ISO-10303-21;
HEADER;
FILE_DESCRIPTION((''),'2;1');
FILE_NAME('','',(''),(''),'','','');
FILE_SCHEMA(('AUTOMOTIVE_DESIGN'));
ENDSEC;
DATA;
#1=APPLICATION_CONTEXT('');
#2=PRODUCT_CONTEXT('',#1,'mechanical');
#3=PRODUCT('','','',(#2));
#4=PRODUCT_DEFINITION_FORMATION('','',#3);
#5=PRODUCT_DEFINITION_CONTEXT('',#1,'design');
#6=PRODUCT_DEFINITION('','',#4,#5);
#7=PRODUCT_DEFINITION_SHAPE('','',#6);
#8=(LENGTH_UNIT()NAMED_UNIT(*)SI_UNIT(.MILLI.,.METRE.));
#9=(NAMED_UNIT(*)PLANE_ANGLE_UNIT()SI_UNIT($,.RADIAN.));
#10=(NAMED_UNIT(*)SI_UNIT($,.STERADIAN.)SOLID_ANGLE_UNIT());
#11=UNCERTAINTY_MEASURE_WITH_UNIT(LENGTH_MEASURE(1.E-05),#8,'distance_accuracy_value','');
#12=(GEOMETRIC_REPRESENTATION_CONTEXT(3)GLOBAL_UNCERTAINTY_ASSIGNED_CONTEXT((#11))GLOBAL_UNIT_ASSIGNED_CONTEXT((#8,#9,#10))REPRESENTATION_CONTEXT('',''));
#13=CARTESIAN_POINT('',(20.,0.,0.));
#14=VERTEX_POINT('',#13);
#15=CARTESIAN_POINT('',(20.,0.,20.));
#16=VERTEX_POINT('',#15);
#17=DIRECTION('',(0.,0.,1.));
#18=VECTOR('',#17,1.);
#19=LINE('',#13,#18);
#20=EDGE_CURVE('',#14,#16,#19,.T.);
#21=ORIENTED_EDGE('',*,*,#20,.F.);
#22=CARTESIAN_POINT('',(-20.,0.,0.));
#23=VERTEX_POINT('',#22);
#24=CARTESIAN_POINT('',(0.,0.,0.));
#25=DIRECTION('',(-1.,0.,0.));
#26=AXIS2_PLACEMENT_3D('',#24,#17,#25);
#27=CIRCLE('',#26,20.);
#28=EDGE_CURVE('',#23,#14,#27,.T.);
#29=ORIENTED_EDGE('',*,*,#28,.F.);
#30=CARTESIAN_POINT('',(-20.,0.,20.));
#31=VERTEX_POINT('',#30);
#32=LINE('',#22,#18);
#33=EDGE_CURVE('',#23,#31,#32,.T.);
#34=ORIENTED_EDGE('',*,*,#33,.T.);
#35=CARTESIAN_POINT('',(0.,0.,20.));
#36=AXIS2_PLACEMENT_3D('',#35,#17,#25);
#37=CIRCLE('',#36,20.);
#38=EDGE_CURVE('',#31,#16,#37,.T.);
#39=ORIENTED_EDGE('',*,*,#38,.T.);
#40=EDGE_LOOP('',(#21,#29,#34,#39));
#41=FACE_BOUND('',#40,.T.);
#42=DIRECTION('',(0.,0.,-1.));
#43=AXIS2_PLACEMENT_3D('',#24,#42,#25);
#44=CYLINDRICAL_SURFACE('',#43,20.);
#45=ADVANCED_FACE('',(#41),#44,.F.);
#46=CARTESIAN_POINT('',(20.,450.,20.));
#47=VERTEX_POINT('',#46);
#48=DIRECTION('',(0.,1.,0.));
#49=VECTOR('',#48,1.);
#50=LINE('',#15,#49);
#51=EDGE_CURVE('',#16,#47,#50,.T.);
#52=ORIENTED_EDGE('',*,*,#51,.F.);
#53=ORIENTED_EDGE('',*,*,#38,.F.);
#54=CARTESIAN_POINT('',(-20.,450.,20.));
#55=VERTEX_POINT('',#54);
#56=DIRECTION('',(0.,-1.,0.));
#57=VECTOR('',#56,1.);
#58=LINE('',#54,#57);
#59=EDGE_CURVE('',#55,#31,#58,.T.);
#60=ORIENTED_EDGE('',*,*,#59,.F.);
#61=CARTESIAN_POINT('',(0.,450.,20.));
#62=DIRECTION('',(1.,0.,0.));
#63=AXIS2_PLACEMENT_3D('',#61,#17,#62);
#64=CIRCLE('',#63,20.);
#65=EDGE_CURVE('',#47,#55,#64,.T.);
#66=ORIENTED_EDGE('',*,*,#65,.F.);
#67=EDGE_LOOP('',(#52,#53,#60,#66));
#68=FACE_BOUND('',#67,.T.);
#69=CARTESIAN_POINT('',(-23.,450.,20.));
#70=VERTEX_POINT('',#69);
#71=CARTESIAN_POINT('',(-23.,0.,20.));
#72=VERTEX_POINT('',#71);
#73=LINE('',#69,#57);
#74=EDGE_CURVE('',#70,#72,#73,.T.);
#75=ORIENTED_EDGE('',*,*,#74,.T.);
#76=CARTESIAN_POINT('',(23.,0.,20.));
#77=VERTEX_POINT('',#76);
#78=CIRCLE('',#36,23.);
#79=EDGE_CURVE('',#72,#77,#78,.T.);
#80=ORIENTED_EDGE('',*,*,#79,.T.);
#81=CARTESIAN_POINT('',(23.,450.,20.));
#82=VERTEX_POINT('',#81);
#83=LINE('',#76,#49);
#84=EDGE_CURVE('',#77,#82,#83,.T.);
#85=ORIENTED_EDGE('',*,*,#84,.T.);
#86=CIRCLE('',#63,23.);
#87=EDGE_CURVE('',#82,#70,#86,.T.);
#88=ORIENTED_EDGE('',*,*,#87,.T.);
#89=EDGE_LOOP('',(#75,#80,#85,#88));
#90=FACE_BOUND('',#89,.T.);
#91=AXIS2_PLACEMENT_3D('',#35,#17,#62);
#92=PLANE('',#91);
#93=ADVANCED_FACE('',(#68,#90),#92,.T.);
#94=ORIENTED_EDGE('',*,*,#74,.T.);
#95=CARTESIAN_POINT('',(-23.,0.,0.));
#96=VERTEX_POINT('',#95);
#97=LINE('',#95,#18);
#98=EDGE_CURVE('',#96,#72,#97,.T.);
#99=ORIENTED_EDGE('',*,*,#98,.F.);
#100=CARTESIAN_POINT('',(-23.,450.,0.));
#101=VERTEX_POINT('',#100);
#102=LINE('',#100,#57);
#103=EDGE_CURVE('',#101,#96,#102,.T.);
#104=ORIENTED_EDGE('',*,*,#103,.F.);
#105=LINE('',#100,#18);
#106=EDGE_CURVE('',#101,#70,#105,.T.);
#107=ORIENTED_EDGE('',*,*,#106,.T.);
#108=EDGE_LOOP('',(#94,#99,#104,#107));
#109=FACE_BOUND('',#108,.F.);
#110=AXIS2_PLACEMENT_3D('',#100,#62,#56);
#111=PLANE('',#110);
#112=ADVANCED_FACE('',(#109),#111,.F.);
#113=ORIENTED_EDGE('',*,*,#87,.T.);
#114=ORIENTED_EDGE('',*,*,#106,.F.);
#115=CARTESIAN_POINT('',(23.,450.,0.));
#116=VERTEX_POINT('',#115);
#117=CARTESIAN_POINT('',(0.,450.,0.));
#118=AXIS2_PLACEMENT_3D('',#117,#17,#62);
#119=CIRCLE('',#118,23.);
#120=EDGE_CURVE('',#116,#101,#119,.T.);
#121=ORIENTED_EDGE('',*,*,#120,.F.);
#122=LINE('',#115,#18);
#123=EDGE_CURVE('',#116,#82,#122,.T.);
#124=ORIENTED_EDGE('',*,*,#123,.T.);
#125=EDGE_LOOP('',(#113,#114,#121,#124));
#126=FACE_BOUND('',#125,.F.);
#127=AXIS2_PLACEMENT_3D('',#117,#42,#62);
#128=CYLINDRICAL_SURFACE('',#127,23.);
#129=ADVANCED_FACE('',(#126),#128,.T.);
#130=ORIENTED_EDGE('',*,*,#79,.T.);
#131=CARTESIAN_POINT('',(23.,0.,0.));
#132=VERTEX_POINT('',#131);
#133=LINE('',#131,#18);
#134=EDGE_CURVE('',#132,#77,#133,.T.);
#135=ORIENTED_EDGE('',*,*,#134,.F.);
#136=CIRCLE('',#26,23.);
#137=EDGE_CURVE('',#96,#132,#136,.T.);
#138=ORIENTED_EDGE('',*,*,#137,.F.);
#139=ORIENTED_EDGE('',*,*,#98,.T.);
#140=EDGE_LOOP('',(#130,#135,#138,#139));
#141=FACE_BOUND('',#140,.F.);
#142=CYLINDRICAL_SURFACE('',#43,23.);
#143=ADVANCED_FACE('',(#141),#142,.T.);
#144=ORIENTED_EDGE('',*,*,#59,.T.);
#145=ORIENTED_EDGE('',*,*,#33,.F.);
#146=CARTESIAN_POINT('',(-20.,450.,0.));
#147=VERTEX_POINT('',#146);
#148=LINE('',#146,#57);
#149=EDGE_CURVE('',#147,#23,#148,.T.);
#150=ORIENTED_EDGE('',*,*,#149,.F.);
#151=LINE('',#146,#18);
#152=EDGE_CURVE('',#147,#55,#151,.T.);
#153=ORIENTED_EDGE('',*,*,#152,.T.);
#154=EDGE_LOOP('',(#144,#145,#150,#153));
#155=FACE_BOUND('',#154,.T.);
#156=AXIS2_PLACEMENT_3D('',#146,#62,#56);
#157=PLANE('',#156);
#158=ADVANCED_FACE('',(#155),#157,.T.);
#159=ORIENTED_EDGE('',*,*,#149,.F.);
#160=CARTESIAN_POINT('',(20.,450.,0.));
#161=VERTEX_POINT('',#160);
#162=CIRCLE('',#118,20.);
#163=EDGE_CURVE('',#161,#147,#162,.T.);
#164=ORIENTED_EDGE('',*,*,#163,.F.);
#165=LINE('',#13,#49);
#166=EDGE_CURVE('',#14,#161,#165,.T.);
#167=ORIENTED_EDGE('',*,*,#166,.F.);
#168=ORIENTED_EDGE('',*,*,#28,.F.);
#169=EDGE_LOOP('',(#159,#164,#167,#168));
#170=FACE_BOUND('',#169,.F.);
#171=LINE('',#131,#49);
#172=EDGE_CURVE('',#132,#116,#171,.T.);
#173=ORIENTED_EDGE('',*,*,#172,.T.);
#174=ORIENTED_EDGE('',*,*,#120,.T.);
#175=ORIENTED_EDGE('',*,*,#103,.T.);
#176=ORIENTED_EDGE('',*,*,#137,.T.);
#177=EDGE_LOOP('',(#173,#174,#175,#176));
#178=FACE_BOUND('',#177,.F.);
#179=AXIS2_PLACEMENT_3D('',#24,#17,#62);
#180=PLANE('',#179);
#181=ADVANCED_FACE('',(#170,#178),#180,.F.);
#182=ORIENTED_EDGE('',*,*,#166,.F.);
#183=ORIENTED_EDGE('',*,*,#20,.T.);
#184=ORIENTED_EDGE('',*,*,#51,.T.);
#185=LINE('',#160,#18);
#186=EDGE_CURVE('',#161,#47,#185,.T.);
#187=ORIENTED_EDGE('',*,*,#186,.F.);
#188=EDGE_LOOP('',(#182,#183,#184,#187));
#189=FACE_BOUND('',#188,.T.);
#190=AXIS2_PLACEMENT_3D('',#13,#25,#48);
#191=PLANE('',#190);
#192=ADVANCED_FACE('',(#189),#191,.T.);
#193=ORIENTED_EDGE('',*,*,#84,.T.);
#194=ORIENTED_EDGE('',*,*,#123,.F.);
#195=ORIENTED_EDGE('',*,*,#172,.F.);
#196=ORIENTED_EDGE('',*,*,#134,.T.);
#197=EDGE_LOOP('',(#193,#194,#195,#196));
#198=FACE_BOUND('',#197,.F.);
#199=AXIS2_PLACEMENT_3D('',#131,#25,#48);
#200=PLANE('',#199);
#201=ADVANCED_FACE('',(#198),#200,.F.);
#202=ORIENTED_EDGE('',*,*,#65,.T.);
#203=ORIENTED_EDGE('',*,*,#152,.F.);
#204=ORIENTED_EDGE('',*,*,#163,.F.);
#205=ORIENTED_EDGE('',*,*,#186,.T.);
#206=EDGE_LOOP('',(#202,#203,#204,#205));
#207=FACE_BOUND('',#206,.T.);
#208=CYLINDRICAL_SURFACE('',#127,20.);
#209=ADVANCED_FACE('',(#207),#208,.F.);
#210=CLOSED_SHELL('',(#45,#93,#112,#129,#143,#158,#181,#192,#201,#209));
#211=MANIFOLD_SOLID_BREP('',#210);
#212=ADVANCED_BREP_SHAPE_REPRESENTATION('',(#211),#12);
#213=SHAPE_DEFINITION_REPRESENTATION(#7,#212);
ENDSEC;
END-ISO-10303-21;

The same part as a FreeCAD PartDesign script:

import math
import FreeCAD as App
import Part
import Sketcher

doc = App.newDocument("Part")
body = doc.addObject("PartDesign::Body", "Body")

sketch1 = doc.addObject("Sketcher::SketchObject", "Sketch")
body.addObject(sketch1)
sketch1.AttachmentSupport = (doc.XY_Plane, [""])
sketch1.MapMode = "FlatFace"
sketch1.addGeometry([
    Part.ArcOfCircle(Part.Circle(App.Vector(0, 0, 0), App.Vector(0, 0, 1), 23), math.radians(180), math.radians(360)),
    Part.LineSegment(App.Vector(23, 0, 0), App.Vector(23, 450, 0)),
    Part.ArcOfCircle(Part.Circle(App.Vector(0, 450, 0), App.Vector(0, 0, 1), 23), math.radians(0), math.radians(180)),
    Part.LineSegment(App.Vector(-23, 450, 0), App.Vector(-23, 0, 0)),
    Part.LineSegment(App.Vector(20, 450, 0), App.Vector(20, 0, 0)),
    Part.ArcOfCircle(Part.Circle(App.Vector(0, 0, 0), App.Vector(0, 0, 1), 20), math.radians(180), math.radians(360)),
    Part.LineSegment(App.Vector(-20, 0, 0), App.Vector(-20, 450, 0)),
    Part.ArcOfCircle(Part.Circle(App.Vector(0, 450, 0), App.Vector(0, 0, 1), 20), math.radians(0), math.radians(180)),
], False)
sketch1.addConstraint([
    Sketcher.Constraint("Tangent", 0, 2, 1, 1),
    Sketcher.Constraint("Tangent", 1, 2, 2, 1),
    Sketcher.Constraint("Tangent", 2, 2, 3, 1),
    Sketcher.Constraint("Tangent", 3, 2, 0, 1),
    Sketcher.Constraint("Tangent", 4, 2, 5, 2),
    Sketcher.Constraint("Tangent", 5, 1, 6, 1),
    Sketcher.Constraint("Tangent", 6, 2, 7, 2),
    Sketcher.Constraint("Tangent", 7, 1, 4, 1),
    Sketcher.Constraint("Vertical", 1),
    Sketcher.Constraint("Vertical", 3),
    Sketcher.Constraint("Vertical", 4),
    Sketcher.Constraint("Vertical", 6),
    Sketcher.Constraint("Coincident", 0, 3, -1, 1),
    Sketcher.Constraint("Coincident", 5, 3, -1, 1),
    Sketcher.Constraint("Horizontal", 7, 3, 1, 2),
    Sketcher.Constraint("Radius", 0, 23.0),
    Sketcher.Constraint("Radius", 5, 20.0),
    Sketcher.Constraint("DistanceY", 1, 1, 1, 2, 450.0),
])
pad1 = doc.addObject("PartDesign::Pad", "Pad")
body.addObject(pad1)
pad1.Profile = sketch1
pad1.Length = 20

doc.recompute()
